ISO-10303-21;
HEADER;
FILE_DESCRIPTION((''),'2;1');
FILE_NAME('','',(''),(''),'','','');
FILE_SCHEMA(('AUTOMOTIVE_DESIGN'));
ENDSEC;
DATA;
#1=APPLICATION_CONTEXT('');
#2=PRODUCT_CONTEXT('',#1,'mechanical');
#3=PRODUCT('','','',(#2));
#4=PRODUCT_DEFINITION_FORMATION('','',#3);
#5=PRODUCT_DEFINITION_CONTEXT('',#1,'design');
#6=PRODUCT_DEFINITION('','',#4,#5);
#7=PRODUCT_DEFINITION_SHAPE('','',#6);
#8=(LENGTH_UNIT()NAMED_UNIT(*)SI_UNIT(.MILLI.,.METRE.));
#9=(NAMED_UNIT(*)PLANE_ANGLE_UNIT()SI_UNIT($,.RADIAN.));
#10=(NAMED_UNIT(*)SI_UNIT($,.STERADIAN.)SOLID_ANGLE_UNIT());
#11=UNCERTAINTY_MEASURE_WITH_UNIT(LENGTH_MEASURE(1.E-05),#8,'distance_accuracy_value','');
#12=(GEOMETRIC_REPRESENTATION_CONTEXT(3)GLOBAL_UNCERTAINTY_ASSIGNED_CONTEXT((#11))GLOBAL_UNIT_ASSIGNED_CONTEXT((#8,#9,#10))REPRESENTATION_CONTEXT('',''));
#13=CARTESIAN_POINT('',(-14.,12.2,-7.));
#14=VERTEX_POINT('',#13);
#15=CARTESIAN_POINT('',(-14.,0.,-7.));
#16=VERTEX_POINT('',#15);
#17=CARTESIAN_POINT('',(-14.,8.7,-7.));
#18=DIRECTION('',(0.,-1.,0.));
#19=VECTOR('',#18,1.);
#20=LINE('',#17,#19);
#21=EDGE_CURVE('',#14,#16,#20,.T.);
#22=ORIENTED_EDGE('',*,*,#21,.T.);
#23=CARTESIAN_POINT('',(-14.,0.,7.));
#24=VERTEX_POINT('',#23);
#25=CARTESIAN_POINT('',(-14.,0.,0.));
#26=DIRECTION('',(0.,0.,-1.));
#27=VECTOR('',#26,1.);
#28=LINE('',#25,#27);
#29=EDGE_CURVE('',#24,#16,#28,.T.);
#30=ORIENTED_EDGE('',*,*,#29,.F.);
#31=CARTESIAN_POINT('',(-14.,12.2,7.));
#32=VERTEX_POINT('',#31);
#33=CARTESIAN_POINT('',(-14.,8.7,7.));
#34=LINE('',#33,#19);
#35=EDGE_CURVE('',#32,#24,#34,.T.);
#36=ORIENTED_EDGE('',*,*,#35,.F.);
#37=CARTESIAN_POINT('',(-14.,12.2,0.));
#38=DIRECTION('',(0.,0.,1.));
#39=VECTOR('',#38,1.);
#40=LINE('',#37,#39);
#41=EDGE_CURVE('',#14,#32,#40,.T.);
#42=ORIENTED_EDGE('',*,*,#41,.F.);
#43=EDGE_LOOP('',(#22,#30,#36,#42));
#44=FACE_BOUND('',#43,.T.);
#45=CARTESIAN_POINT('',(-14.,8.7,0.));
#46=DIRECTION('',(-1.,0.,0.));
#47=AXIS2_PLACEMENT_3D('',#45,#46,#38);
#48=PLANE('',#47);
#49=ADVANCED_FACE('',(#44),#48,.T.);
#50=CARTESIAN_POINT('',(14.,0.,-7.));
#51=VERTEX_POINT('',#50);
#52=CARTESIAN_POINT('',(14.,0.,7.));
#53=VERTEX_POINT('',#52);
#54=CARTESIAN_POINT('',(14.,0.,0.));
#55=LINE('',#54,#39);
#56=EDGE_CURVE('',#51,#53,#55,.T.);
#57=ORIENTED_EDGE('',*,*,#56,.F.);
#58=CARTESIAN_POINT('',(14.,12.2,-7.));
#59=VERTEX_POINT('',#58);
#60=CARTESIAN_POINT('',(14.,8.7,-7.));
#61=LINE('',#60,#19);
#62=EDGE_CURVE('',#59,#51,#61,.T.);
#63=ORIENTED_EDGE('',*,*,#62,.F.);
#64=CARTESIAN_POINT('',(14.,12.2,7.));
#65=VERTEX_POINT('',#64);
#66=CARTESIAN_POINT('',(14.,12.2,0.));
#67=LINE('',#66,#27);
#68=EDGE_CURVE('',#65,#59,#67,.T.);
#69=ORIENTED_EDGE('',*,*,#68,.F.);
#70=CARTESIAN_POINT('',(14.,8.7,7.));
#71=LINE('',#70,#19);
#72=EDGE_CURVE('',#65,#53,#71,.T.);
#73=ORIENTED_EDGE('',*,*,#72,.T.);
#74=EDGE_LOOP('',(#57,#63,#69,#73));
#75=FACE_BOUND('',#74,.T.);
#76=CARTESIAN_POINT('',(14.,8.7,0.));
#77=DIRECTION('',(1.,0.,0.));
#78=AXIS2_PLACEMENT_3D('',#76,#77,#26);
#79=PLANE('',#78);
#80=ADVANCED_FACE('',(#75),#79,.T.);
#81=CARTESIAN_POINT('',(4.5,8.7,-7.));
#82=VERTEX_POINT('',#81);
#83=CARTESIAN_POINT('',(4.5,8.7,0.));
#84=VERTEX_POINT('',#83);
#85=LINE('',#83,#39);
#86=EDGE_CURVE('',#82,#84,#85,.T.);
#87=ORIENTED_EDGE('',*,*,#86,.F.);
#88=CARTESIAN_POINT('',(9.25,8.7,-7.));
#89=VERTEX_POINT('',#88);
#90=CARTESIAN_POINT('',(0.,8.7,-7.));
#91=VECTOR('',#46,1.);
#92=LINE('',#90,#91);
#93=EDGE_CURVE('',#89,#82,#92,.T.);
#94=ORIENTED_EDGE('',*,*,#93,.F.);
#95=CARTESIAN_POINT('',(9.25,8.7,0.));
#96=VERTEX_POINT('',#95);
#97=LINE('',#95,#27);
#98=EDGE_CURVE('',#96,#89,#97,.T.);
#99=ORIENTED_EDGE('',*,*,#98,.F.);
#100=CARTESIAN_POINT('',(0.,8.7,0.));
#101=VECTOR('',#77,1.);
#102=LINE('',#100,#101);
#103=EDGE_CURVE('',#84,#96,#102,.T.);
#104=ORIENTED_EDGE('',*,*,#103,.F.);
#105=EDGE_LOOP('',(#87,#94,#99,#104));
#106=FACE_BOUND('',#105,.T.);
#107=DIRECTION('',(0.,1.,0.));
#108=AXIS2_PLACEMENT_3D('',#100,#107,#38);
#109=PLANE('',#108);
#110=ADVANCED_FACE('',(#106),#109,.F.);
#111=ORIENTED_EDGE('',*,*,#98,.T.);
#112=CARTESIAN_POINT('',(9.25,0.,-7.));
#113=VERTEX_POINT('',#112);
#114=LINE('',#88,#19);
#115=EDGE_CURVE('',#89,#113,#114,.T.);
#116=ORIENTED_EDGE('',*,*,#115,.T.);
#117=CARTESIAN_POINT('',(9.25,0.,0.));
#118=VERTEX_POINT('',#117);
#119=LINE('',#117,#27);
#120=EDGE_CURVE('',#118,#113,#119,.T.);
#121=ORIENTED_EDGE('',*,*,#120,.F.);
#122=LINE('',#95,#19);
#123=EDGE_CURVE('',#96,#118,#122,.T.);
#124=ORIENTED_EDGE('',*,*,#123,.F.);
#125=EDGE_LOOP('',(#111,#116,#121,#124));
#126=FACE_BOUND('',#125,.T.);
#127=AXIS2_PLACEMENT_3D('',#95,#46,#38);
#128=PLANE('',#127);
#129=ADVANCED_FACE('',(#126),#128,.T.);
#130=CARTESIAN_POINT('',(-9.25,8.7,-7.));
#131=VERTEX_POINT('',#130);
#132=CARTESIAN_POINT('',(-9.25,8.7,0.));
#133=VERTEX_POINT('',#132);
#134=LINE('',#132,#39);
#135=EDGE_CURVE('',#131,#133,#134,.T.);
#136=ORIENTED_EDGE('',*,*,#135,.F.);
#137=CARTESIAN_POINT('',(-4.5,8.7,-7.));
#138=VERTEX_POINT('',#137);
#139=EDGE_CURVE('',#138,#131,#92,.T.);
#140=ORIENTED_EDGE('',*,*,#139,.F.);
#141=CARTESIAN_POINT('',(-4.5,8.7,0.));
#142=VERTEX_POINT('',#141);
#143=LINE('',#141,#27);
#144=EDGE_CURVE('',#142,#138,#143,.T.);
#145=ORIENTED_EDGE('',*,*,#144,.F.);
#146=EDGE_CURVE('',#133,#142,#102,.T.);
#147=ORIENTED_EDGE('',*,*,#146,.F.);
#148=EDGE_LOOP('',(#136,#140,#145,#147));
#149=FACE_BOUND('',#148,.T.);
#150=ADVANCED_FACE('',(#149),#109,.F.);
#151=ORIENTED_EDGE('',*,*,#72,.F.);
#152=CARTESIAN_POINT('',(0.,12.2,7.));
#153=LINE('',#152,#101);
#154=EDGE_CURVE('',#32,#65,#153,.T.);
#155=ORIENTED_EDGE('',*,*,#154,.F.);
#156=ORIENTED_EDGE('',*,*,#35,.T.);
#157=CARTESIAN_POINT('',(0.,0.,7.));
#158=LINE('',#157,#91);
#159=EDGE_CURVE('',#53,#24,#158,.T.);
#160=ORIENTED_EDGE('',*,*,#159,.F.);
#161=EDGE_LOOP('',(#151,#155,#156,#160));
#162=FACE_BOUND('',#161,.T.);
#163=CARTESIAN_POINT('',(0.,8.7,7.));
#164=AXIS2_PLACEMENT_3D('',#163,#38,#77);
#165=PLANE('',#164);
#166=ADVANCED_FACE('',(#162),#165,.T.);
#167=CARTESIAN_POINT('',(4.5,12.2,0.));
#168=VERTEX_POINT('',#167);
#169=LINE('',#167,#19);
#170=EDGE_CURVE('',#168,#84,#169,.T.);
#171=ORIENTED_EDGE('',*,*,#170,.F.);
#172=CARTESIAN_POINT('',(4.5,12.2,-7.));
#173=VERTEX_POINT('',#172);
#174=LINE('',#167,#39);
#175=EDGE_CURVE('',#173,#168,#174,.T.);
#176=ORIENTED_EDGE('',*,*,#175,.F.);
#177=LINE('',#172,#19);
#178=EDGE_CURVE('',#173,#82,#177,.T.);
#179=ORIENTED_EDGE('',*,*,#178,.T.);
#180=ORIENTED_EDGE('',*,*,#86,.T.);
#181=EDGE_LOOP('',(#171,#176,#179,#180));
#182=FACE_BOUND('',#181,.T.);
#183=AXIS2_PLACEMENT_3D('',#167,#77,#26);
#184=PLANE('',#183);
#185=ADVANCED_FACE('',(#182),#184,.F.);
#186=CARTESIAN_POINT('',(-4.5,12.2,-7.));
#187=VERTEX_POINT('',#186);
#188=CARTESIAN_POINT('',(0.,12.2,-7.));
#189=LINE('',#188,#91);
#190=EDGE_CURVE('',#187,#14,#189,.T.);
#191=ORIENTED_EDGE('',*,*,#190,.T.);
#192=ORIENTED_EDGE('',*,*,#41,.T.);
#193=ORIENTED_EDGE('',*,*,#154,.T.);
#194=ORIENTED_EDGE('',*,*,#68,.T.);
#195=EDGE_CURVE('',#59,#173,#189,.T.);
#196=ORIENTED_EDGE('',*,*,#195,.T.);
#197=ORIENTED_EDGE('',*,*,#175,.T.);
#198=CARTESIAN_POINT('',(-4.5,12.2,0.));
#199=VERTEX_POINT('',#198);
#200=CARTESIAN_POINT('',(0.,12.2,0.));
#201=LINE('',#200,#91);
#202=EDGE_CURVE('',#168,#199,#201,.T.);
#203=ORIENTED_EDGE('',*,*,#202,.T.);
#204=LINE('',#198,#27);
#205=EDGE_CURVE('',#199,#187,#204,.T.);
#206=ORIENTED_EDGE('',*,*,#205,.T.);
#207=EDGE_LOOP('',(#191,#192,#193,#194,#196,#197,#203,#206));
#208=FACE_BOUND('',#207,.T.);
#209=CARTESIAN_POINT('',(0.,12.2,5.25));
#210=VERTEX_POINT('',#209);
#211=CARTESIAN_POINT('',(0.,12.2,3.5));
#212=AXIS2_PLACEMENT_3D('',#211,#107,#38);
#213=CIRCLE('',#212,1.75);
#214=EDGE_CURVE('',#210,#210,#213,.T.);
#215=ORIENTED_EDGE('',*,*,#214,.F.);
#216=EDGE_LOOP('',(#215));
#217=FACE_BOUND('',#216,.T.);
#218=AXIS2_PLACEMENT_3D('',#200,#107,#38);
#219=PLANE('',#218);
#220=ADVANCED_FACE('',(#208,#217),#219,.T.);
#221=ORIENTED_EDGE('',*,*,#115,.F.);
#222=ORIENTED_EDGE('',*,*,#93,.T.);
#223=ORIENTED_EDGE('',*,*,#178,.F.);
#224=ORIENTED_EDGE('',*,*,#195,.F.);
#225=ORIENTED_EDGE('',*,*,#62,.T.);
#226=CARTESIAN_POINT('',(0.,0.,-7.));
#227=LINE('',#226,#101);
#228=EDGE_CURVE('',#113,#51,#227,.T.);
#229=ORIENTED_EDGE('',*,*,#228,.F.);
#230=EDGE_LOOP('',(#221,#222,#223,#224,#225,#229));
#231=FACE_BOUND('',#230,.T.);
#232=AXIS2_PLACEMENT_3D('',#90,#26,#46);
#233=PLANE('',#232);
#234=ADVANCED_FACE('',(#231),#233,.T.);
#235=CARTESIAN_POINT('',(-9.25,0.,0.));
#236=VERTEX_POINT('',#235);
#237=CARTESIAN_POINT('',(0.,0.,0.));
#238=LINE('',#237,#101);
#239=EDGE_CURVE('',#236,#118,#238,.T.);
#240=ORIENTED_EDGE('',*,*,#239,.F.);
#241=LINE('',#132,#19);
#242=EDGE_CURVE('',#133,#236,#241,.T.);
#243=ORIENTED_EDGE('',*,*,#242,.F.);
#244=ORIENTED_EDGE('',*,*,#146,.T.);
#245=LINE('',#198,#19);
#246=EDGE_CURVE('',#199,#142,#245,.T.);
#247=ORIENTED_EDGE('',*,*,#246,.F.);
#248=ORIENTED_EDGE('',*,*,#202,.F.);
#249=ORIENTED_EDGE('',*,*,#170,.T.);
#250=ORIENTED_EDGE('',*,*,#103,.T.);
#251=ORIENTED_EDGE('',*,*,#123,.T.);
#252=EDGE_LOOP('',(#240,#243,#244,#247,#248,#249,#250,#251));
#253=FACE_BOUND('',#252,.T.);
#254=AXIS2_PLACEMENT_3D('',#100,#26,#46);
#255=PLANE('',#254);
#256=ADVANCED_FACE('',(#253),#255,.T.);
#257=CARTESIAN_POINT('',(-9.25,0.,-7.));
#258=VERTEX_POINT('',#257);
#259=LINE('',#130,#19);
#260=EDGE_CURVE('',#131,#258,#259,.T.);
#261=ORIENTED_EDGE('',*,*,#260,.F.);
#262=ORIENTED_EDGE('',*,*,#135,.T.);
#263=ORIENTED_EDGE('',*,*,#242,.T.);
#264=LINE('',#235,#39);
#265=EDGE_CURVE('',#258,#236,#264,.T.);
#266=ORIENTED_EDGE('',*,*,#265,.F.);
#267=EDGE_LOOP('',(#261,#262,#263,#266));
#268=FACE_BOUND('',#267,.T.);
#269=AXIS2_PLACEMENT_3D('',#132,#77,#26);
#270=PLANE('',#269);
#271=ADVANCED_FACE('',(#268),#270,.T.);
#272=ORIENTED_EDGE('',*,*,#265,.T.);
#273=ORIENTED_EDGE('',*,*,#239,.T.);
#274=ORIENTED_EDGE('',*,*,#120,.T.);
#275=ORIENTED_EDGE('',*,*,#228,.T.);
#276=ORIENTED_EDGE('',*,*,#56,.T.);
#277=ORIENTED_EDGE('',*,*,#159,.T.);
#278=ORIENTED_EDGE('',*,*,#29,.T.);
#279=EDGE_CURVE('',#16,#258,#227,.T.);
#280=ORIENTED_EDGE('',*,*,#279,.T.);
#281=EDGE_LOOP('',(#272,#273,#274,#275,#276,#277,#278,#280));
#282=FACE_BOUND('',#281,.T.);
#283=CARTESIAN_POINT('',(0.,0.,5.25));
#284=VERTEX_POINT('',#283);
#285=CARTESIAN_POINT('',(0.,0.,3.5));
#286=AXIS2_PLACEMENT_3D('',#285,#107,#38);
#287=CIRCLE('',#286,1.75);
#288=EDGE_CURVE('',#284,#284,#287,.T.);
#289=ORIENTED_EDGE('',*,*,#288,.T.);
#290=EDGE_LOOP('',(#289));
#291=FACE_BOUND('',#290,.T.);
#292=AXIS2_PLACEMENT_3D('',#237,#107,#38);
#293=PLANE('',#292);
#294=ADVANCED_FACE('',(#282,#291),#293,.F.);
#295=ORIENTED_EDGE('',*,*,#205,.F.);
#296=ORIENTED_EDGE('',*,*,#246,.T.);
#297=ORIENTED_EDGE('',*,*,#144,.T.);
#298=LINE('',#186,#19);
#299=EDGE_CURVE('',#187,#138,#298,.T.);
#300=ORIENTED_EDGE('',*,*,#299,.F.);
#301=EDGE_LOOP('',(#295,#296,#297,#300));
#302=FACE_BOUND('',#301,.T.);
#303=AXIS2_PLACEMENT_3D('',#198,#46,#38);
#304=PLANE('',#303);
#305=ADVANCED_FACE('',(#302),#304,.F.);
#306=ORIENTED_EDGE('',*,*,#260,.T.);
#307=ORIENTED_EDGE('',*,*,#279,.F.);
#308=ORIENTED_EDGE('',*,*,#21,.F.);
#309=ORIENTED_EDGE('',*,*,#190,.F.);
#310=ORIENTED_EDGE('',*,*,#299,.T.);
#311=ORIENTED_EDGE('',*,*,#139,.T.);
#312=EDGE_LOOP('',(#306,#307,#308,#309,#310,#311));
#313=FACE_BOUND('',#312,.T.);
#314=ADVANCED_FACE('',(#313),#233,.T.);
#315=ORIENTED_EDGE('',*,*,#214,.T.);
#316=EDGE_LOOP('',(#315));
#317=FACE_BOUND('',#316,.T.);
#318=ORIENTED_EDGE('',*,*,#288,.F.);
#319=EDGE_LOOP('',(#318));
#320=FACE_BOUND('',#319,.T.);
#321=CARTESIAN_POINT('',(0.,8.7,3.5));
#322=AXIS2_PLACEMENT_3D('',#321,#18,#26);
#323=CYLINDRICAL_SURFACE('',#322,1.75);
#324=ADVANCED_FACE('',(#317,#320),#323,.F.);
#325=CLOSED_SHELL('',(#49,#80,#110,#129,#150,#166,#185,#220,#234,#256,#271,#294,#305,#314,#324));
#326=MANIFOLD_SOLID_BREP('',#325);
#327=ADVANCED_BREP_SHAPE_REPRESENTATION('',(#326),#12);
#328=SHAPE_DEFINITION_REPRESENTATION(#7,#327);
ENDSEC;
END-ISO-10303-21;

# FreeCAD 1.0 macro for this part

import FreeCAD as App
import Part
import Sketcher

V = App.Vector


def add_polygon(sketch, points):
    """Adds a closed chain of lines whose ends are joined by coincident constraints."""
    first, n = sketch.GeometryCount, len(points)
    for a, b in zip(points, points[1:] + points[:1]):
        sketch.addGeometry(Part.LineSegment(App.Vector(*a, 0), App.Vector(*b, 0)), False)
    for i in range(n):
        sketch.addConstraint(Sketcher.Constraint("Coincident", first + i, 2, first + (i + 1) % n, 1))

doc = App.newDocument("Part")
body = doc.addObject("PartDesign::Body", "Body")

sketch1 = body.newObject("Sketcher::SketchObject", "Sketch")
sketch1.AttachmentSupport = (doc.getObject("XZ_Plane"), [""])
sketch1.MapMode = "FlatFace"
add_polygon(sketch1, [(-9.2, -7), (-14, -7), (-14, 7), (14, 7), (14, -7), (9.2, -7), (9.2, 0), (-9.2, 0)])
sketch1.addGeometry(Part.Circle(V(0, 3.5, 0), V(0, 0, 1), 1.8), False)
sketch1.addConstraint(Sketcher.Constraint("Horizontal", 0))
sketch1.addConstraint(Sketcher.Constraint("Vertical", 1))
sketch1.addConstraint(Sketcher.Constraint("Horizontal", 2))
sketch1.addConstraint(Sketcher.Constraint("Vertical", 3))
sketch1.addConstraint(Sketcher.Constraint("Horizontal", 4))
sketch1.addConstraint(Sketcher.Constraint("Vertical", 5))
sketch1.addConstraint(Sketcher.Constraint("Horizontal", 6))
sketch1.addConstraint(Sketcher.Constraint("Vertical", 7))
sketch1.addConstraint(Sketcher.Constraint("Symmetric", 0, 2, 2, 2, -1, 1))
sketch1.addConstraint(Sketcher.Constraint("Symmetric", 5, 2, 6, 2, -1, 1))
sketch1.addConstraint(Sketcher.Constraint("PointOnObject", 8, 3, -2))
sketch1.addConstraint(Sketcher.Constraint("Horizontal", 0, 2, 3, 2))
sketch1.addConstraint(Sketcher.Constraint("Diameter", 8, 3.5))
sketch1.addConstraint(Sketcher.Constraint("DistanceX", 2, 1, 2, 2, 28.0))
sketch1.addConstraint(Sketcher.Constraint("DistanceY", 1, 1, 1, 2, 14.0))
sketch1.addConstraint(Sketcher.Constraint("DistanceX", 6, 2, 6, 1, 18.5))
sketch1.addConstraint(Sketcher.Constraint("DistanceY", -1, 1, 8, 3, 3.5))
pad1 = body.newObject("PartDesign::Pad", "Pad")
pad1.Profile = sketch1
pad1.Length = 8.7
pad1.Reversed = True

sketch2 = body.newObject("Sketcher::SketchObject", "Sketch001")
sketch2.AttachmentSupport = (doc.getObject("XZ_Plane"), [""])
sketch2.MapMode = "FlatFace"
sketch2.AttachmentOffset = App.Placement(V(0, 0, -8.7), App.Rotation())
add_polygon(sketch2, [(-4.5, -7), (-14, -7), (-14, 7), (14, 7), (14, -7), (4.5, -7), (4.5, 0), (-4.5, 0)])
sketch2.addGeometry(Part.Circle(V(0, 3.5, 0), V(0, 0, 1), 1.8), False)
sketch2.addConstraint(Sketcher.Constraint("Horizontal", 0))
sketch2.addConstraint(Sketcher.Constraint("Vertical", 1))
sketch2.addConstraint(Sketcher.Constraint("Horizontal", 2))
sketch2.addConstraint(Sketcher.Constraint("Vertical", 3))
sketch2.addConstraint(Sketcher.Constraint("Horizontal", 4))
sketch2.addConstraint(Sketcher.Constraint("Vertical", 5))
sketch2.addConstraint(Sketcher.Constraint("Horizontal", 6))
sketch2.addConstraint(Sketcher.Constraint("Vertical", 7))
sketch2.addConstraint(Sketcher.Constraint("Symmetric", 0, 2, 2, 2, -1, 1))
sketch2.addConstraint(Sketcher.Constraint("Symmetric", 5, 2, 6, 2, -1, 1))
sketch2.addConstraint(Sketcher.Constraint("PointOnObject", 8, 3, -2))
sketch2.addConstraint(Sketcher.Constraint("Horizontal", 0, 2, 3, 2))
sketch2.addConstraint(Sketcher.Constraint("Diameter", 8, 3.5))
sketch2.addConstraint(Sketcher.Constraint("DistanceX", 2, 1, 2, 2, 28.0))
sketch2.addConstraint(Sketcher.Constraint("DistanceX", 6, 2, 6, 1, 9.0))
sketch2.addConstraint(Sketcher.Constraint("DistanceY", 1, 1, 1, 2, 14.0))
sketch2.addConstraint(Sketcher.Constraint("DistanceY", -1, 1, 8, 3, 3.5))
pad2 = body.newObject("PartDesign::Pad", "Pad001")
pad2.Profile = sketch2
pad2.Length = 3.5
pad2.Reversed = True

doc.recompute()
